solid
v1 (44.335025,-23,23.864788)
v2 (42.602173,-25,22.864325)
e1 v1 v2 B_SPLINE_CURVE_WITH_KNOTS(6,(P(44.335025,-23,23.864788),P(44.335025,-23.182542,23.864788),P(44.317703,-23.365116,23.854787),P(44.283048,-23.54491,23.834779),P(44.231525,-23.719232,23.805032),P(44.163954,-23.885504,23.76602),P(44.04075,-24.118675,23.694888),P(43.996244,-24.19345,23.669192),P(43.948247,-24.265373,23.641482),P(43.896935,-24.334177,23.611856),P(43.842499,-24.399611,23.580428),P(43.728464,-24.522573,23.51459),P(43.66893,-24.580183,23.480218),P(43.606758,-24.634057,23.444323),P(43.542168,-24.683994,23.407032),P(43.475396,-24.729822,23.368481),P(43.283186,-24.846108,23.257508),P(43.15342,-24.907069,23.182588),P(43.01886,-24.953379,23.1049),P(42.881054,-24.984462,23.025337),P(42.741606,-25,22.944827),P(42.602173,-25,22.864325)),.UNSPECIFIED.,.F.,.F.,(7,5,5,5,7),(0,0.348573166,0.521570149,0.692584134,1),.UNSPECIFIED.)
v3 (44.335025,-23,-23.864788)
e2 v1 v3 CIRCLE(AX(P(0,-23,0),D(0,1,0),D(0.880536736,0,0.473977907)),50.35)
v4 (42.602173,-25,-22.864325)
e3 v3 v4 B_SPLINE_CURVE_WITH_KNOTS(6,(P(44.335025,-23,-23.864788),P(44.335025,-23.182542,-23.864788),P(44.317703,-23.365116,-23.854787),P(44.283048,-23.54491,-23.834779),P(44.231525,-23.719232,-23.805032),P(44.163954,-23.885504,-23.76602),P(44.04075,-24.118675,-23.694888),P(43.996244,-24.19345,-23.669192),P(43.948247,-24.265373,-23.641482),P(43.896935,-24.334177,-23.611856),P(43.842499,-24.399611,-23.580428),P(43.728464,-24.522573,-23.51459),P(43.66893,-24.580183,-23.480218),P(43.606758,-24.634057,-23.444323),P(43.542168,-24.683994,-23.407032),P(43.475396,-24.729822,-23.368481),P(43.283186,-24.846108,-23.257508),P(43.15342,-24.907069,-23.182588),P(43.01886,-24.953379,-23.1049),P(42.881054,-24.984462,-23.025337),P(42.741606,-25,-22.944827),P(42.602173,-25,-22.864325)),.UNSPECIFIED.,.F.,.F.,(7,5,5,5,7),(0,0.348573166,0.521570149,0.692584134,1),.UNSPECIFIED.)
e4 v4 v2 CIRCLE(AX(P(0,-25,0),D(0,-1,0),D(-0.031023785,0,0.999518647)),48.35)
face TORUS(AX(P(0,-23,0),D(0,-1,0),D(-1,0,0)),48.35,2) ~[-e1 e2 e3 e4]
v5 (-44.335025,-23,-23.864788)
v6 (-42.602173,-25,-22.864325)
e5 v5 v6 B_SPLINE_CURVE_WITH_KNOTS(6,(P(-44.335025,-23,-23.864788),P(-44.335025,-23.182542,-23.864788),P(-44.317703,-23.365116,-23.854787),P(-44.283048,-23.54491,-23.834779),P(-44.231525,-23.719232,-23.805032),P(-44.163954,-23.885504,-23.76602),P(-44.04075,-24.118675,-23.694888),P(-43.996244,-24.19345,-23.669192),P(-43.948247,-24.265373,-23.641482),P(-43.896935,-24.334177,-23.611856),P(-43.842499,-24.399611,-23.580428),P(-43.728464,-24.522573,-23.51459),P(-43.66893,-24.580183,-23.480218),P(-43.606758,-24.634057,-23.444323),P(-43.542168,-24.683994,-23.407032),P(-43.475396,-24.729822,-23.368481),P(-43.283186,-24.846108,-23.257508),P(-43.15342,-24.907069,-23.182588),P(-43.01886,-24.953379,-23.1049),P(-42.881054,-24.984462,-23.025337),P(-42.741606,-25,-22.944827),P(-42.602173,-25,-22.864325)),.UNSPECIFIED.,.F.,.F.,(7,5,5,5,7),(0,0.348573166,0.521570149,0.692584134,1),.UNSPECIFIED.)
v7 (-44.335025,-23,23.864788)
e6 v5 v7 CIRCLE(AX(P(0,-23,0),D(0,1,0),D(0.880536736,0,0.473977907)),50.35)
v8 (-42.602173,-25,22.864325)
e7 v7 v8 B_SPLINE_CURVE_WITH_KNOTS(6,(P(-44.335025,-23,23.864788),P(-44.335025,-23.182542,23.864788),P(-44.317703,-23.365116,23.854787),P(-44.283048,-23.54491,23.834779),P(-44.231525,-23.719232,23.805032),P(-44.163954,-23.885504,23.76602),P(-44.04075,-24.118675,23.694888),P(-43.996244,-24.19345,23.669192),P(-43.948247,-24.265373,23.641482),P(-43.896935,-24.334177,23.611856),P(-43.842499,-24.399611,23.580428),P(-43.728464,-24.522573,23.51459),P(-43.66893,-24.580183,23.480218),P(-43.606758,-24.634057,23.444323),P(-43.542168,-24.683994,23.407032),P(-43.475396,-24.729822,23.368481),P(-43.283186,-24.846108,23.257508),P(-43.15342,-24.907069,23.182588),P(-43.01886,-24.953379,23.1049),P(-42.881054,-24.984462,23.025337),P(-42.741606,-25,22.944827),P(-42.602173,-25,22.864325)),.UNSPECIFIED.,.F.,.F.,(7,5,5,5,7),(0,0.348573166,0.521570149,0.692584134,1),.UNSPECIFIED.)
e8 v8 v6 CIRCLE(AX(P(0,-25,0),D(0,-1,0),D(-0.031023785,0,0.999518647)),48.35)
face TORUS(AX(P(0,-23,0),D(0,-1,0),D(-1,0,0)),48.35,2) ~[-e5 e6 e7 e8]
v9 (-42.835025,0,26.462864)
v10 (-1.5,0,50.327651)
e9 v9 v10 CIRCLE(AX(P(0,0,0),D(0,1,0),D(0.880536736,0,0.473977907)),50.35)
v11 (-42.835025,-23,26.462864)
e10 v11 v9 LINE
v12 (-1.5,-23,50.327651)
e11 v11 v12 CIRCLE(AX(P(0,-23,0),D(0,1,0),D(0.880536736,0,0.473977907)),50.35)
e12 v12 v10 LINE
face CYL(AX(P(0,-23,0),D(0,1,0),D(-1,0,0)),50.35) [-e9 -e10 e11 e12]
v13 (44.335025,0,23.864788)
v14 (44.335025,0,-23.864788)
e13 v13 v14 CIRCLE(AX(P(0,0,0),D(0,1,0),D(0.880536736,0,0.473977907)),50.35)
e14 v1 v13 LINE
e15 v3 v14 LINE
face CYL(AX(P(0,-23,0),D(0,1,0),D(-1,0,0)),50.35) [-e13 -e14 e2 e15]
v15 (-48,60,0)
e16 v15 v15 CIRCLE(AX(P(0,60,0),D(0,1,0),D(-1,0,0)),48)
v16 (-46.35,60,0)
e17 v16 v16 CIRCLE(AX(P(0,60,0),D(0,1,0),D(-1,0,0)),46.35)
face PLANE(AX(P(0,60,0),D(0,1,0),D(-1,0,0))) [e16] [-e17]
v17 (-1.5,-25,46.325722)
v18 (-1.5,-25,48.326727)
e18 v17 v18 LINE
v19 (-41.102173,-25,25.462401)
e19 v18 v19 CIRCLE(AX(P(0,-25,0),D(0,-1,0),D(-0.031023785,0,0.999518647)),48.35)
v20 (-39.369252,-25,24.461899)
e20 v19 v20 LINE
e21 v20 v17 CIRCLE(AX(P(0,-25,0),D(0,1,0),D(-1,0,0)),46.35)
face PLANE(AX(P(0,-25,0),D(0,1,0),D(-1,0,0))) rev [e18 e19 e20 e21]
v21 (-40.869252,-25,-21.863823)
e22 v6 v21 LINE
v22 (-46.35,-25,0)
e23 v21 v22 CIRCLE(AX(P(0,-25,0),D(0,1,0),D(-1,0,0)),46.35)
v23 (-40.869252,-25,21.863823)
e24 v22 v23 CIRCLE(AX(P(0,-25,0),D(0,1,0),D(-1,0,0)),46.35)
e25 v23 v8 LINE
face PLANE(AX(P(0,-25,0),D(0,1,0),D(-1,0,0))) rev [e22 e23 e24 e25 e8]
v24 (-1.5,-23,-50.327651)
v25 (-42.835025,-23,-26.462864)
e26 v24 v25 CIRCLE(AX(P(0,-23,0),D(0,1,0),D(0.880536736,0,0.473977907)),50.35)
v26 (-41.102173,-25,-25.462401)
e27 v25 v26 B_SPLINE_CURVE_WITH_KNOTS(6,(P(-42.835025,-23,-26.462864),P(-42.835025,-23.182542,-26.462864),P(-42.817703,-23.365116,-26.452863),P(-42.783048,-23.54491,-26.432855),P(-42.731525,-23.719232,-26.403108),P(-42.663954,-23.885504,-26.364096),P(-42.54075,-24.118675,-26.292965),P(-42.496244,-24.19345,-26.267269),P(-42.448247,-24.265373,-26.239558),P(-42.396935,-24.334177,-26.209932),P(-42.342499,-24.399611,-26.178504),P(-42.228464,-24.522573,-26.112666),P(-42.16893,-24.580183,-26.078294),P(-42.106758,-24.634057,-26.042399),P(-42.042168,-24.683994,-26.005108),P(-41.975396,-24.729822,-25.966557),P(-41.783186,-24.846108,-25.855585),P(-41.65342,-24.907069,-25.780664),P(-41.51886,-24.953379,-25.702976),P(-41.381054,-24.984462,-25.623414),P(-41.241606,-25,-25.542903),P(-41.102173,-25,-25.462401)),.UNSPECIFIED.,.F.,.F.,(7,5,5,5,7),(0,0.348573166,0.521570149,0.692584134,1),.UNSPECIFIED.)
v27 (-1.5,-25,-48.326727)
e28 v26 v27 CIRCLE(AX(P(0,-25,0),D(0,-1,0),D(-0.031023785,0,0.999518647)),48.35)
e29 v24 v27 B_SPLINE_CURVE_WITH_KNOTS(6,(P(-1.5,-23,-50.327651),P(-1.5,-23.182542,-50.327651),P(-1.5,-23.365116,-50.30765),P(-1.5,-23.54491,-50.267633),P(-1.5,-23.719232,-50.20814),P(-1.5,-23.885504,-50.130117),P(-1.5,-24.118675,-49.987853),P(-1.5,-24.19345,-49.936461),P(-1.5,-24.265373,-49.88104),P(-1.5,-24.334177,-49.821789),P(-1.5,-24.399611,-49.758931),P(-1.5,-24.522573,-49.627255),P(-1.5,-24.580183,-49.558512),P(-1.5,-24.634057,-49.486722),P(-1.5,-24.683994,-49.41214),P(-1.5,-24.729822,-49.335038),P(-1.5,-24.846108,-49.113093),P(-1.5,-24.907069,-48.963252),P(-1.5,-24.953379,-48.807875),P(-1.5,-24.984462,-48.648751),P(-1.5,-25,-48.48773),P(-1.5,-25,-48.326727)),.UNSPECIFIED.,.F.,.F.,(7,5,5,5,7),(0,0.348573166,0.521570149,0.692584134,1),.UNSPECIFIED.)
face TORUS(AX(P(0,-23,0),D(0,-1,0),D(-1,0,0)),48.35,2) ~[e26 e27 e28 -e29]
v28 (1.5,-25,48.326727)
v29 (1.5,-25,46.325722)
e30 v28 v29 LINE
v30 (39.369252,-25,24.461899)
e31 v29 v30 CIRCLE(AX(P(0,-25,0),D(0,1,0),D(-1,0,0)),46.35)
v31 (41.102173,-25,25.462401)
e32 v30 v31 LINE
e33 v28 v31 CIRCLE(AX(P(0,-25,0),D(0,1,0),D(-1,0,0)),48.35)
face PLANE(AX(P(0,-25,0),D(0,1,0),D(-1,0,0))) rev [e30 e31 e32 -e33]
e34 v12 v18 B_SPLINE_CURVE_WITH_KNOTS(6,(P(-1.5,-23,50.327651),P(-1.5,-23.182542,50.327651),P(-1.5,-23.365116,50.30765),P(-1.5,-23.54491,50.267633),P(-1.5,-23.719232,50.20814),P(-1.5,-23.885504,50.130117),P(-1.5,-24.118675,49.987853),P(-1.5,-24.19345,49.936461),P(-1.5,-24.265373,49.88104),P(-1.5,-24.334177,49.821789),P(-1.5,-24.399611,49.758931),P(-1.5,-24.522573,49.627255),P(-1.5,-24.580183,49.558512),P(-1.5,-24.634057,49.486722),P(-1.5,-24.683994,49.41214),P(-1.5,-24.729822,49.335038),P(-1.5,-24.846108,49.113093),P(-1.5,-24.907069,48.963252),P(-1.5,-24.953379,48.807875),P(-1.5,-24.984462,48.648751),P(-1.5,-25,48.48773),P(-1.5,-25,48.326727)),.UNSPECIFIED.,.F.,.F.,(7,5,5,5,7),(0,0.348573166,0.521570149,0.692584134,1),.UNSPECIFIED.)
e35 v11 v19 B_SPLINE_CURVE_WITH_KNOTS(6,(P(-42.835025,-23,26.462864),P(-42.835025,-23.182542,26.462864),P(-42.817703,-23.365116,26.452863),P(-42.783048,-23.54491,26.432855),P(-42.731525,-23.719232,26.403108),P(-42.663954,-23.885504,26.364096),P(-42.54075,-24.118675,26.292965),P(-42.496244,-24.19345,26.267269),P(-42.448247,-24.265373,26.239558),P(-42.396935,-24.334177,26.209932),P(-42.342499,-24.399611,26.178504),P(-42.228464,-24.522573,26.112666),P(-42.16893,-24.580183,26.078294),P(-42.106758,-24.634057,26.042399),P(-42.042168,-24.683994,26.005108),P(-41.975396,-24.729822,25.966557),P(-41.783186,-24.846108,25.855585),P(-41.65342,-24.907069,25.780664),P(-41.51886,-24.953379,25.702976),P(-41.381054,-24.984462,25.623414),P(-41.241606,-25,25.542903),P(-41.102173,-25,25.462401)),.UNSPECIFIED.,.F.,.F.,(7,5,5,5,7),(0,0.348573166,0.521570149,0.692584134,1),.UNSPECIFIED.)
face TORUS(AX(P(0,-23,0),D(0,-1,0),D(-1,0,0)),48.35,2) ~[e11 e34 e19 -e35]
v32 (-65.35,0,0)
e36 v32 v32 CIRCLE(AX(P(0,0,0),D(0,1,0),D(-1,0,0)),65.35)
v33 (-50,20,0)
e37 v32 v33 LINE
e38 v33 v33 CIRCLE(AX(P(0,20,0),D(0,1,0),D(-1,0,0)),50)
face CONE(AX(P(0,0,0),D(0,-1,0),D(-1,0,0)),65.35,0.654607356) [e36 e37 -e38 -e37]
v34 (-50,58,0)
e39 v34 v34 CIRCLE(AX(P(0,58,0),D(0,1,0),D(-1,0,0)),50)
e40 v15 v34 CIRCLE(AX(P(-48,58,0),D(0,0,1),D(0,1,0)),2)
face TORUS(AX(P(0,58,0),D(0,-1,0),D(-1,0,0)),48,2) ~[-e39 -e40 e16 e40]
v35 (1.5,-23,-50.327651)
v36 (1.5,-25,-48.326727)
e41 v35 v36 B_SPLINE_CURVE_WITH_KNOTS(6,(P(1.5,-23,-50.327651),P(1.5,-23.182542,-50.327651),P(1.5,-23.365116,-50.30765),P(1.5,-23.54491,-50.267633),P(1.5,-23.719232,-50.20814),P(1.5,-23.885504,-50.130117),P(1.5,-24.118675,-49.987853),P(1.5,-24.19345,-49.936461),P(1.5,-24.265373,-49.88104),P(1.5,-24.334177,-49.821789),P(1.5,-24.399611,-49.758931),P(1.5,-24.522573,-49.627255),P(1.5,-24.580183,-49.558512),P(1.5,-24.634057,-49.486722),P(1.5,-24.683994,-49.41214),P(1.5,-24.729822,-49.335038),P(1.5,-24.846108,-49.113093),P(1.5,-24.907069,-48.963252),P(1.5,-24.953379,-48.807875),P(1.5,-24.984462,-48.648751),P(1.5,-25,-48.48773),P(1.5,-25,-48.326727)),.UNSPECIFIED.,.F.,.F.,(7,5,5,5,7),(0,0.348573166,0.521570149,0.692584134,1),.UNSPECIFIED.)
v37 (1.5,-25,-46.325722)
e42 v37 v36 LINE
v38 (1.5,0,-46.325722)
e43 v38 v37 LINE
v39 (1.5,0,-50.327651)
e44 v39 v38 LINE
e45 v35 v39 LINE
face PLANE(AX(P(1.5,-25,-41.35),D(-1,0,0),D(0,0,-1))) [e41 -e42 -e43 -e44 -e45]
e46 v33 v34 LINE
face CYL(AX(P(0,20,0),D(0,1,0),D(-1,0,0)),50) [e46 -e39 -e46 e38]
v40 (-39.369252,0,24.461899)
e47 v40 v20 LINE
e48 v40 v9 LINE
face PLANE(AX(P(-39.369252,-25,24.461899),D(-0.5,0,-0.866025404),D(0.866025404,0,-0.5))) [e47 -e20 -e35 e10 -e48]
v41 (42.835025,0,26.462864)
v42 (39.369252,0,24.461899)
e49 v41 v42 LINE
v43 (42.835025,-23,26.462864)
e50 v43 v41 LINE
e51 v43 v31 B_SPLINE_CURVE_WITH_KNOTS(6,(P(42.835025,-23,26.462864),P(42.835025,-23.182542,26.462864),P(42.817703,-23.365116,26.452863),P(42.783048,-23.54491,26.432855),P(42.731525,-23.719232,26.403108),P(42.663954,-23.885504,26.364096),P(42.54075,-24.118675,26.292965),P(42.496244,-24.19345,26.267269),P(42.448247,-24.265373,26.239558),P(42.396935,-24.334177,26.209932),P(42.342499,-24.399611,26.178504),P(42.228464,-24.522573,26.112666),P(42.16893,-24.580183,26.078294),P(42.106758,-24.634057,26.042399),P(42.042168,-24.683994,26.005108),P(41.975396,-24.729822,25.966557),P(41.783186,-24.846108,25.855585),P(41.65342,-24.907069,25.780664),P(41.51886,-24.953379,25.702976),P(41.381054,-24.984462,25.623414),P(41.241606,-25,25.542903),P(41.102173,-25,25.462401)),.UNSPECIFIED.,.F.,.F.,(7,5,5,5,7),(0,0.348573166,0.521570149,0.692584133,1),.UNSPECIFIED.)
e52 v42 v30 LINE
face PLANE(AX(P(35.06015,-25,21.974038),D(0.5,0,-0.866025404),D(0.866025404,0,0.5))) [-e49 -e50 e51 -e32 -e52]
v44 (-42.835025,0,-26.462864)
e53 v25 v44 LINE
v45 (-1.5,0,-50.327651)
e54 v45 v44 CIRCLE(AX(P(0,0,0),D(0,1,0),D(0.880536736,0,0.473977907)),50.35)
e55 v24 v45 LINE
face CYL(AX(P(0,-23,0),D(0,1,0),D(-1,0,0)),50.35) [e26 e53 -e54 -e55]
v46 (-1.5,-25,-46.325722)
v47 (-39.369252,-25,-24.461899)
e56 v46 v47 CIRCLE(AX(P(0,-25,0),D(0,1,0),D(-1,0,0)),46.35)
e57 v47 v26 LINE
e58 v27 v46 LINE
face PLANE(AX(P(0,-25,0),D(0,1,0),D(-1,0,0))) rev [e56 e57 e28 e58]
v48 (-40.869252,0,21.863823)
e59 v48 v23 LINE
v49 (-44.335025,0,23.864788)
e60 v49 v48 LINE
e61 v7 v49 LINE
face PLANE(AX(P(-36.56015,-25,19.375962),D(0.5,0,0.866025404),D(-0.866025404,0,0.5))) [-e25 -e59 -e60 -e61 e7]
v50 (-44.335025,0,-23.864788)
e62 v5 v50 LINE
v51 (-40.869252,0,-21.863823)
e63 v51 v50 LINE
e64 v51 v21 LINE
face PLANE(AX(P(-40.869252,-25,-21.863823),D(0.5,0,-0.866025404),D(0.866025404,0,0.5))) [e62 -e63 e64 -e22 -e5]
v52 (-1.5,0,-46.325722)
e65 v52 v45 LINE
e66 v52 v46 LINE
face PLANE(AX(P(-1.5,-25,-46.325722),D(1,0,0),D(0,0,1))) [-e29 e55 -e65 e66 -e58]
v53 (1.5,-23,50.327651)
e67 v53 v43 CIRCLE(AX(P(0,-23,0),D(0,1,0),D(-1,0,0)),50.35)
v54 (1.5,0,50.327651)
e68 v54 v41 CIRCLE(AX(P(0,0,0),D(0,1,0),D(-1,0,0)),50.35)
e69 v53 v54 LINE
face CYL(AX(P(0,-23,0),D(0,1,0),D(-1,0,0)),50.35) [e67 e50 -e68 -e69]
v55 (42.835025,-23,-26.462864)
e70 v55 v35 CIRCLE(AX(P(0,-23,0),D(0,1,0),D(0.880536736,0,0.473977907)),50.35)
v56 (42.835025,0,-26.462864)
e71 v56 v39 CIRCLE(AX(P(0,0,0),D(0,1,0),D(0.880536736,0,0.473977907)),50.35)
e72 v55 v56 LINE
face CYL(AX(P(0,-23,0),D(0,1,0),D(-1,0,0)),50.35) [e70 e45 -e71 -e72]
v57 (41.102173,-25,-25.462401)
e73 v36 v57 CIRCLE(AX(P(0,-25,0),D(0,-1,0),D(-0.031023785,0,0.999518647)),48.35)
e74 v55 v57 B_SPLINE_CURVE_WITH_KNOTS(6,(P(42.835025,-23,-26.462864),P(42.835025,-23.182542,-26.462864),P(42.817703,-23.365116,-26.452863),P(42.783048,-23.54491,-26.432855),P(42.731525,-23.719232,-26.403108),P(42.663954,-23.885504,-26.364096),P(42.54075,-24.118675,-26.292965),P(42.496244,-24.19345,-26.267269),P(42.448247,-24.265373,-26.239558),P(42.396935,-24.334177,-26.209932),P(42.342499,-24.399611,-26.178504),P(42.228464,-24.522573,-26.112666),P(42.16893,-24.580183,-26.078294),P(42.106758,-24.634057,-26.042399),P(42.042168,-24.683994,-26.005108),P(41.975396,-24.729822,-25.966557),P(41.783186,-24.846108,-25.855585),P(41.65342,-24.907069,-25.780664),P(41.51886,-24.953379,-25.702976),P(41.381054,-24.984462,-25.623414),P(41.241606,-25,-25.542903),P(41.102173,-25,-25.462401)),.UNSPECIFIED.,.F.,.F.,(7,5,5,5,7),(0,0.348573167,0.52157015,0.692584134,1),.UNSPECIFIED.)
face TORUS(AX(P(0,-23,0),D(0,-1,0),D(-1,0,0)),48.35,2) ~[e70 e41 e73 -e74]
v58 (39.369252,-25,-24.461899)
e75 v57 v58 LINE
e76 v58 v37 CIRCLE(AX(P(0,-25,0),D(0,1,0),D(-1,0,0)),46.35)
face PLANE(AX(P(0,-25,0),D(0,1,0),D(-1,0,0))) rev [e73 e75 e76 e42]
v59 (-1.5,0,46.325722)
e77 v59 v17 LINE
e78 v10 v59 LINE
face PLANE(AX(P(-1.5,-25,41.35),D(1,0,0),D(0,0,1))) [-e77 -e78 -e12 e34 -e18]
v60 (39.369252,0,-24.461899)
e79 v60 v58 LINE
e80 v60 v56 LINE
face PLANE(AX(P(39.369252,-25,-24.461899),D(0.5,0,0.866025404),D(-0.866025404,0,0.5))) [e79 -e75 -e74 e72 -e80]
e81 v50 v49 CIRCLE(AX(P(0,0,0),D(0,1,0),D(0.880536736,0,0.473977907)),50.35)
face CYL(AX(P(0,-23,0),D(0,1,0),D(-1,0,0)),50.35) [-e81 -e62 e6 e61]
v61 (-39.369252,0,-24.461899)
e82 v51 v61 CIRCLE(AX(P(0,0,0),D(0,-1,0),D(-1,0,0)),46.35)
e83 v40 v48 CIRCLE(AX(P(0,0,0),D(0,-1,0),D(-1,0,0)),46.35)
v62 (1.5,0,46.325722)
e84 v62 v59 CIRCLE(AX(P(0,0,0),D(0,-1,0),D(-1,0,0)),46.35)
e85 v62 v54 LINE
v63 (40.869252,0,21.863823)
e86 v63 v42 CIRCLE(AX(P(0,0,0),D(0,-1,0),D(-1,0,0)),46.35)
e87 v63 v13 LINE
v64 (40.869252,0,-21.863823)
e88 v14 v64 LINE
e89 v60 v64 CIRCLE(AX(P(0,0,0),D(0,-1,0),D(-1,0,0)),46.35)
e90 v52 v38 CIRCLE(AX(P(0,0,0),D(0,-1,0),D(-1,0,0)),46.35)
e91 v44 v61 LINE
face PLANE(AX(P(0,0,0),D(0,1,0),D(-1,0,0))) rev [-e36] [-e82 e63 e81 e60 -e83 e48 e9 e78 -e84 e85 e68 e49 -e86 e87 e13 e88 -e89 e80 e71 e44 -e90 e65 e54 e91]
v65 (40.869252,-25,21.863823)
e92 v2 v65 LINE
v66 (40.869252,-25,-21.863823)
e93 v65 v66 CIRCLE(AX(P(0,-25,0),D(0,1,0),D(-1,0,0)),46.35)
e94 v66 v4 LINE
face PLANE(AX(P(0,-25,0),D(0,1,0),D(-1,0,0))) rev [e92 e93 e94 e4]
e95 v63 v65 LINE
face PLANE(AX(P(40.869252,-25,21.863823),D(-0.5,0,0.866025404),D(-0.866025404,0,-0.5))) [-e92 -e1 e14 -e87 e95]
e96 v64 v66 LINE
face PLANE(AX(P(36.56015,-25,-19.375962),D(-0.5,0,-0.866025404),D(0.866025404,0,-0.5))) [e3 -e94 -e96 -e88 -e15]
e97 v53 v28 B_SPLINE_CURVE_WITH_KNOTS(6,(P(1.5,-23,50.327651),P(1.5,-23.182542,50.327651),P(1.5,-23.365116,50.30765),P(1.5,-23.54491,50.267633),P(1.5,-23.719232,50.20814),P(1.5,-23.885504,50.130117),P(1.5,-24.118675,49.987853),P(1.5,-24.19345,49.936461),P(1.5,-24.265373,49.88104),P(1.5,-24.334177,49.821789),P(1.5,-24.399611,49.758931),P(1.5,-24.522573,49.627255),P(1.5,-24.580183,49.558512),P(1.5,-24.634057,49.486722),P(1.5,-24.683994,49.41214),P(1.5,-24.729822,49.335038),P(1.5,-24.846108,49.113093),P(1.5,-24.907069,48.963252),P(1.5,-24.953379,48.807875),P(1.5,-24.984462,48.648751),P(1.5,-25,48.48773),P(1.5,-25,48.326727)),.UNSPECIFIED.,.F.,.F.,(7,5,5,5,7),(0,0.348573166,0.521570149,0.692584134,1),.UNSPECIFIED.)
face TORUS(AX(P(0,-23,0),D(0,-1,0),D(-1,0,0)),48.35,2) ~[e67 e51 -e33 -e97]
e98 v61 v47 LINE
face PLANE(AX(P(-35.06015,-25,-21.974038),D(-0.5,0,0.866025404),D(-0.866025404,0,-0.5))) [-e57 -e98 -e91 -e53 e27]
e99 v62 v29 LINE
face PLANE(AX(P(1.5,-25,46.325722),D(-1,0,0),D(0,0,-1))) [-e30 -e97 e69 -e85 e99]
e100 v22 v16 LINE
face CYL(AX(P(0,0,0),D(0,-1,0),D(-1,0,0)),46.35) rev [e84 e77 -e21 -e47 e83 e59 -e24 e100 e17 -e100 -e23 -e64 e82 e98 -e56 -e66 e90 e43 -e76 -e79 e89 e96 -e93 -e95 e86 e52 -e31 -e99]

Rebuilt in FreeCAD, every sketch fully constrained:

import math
import FreeCAD as App
import Part
import Sketcher
from FreeCAD import Vector

doc = App.newDocument("Part")
body = doc.addObject("PartDesign::Body", "Body")

# Sketch on XY plane
sketch1 = body.newObject("Sketcher::SketchObject", "Sketch")
sketch1.AttachmentSupport = (doc.getObject("XY_Plane"), [""])
sketch1.MapMode = "FlatFace"
sketch1.addGeometry([
    Part.LineSegment(Vector(-65.3, 0, 0), Vector(-50.4, 0, 0)),  # 0
    Part.LineSegment(Vector(-50.4, 0, 0), Vector(-50.4, -23, 0)),  # 1
    Part.ArcOfCircle(Part.Circle(Vector(-48.4, -23, 0), Vector(0, 0, 1), 2), math.radians(180), math.radians(270)),  # 2
    Part.LineSegment(Vector(-48.4, -25, 0), Vector(-46.4, -25, 0)),  # 3
    Part.LineSegment(Vector(-46.4, -25, 0), Vector(-46.4, 60, 0)),  # 4
    Part.LineSegment(Vector(-46.4, 60, 0), Vector(-48, 60, 0)),  # 5
    Part.ArcOfCircle(Part.Circle(Vector(-48, 58, 0), Vector(0, 0, 1), 2), math.radians(90), math.radians(180)),  # 6
    Part.LineSegment(Vector(-50, 58, 0), Vector(-50, 20, 0)),  # 7
    Part.LineSegment(Vector(-50, 20, 0), Vector(-65.3, 0, 0)),  # 8
], False)
sketch1.addConstraint([
    Sketcher.Constraint("Coincident", 0, 2, 1, 1),
    Sketcher.Constraint("Tangent", 1, 2, 2, 1),
    Sketcher.Constraint("Tangent", 2, 2, 3, 1),
    Sketcher.Constraint("Coincident", 3, 2, 4, 1),
    Sketcher.Constraint("Coincident", 4, 2, 5, 1),
    Sketcher.Constraint("Tangent", 5, 2, 6, 1),
    Sketcher.Constraint("Tangent", 6, 2, 7, 1),
    Sketcher.Constraint("Coincident", 7, 2, 8, 1),
    Sketcher.Constraint("Coincident", 8, 2, 0, 1),
    Sketcher.Constraint("Horizontal", 0),
    Sketcher.Constraint("Vertical", 1),
    Sketcher.Constraint("Horizontal", 3),
    Sketcher.Constraint("Vertical", 4),
    Sketcher.Constraint("Horizontal", 5),
    Sketcher.Constraint("Vertical", 7),
    Sketcher.Constraint("Equal", 2, 6),
    Sketcher.Constraint("PointOnObject", 0, 2, -1),
    Sketcher.Constraint("Radius", 2, 2.0),
    Sketcher.Constraint("DistanceX", 0, 1, 0, 2, 15.0),
    Sketcher.Constraint("DistanceX", 3, 1, 3, 2, 2.0),
    Sketcher.Constraint("DistanceY", 2, 2, -1, 1, 25.0),
    Sketcher.Constraint("DistanceX", 6, 2, -1, 1, 50.0),
    Sketcher.Constraint("DistanceY", -1, 1, 7, 2, 20.0),
    Sketcher.Constraint("DistanceY", 7, 2, 5, 2, 40.0),
    Sketcher.Constraint("DistanceX", 0, 2, -1, 1, 50.35),
])
revolution = body.newObject("PartDesign::Revolution", "Revolution")
revolution.Profile = sketch1
revolution.ReferenceAxis = (sketch1, ["V_Axis"])
revolution.Angle = 360

# Sketch on XZ plane
sketch2 = body.newObject("Sketcher::SketchObject", "Sketch001")
sketch2.AttachmentSupport = (doc.getObject("XZ_Plane"), [""])
sketch2.MapMode = "FlatFace"
sketch2.AttachmentOffset = App.Placement(Vector(0, 0, 25), App.Rotation())
sketch2.addGeometry([
    Part.LineSegment(Vector(-1.5, 41.4, 0), Vector(1.5, 41.4, 0)),
    Part.LineSegment(Vector(1.5, 41.4, 0), Vector(1.5, 51.4, 0)),
    Part.LineSegment(Vector(1.5, 51.4, 0), Vector(-1.5, 51.4, 0)),
    Part.LineSegment(Vector(-1.5, 51.4, 0), Vector(-1.5, 41.4, 0)),
], False)
sketch2.addConstraint([
    Sketcher.Constraint("Coincident", 0, 2, 1, 1),
    Sketcher.Constraint("Coincident", 1, 2, 2, 1),
    Sketcher.Constraint("Coincident", 2, 2, 3, 1),
    Sketcher.Constraint("Coincident", 3, 2, 0, 1),
    Sketcher.Constraint("Horizontal", 0),
    Sketcher.Constraint("Vertical", 1),
    Sketcher.Constraint("Horizontal", 2),
    Sketcher.Constraint("Vertical", 3),
    Sketcher.Constraint("DistanceX", 0, 1, 0, 2, 3.0),
    Sketcher.Constraint("DistanceY", 1, 1, 1, 2, 10.0),
    Sketcher.Constraint("DistanceX", -1, 1, 0, 2, 1.5),
    Sketcher.Constraint("DistanceY", -1, 1, 0, 2, 41.35),
])
pocket1 = body.newObject("PartDesign::Pocket", "Pocket")
pocket1.Profile = sketch2
pocket1.Length = 25
doc.recompute()

polarpattern = body.newObject("PartDesign::PolarPattern", "PolarPattern")
polarpattern.Originals = [pocket1]
polarpattern.Axis = (doc.getObject("Y_Axis"), [""])
polarpattern.Angle = 360
polarpattern.Occurrences = 6
body.Tip = polarpattern

doc.recompute()
